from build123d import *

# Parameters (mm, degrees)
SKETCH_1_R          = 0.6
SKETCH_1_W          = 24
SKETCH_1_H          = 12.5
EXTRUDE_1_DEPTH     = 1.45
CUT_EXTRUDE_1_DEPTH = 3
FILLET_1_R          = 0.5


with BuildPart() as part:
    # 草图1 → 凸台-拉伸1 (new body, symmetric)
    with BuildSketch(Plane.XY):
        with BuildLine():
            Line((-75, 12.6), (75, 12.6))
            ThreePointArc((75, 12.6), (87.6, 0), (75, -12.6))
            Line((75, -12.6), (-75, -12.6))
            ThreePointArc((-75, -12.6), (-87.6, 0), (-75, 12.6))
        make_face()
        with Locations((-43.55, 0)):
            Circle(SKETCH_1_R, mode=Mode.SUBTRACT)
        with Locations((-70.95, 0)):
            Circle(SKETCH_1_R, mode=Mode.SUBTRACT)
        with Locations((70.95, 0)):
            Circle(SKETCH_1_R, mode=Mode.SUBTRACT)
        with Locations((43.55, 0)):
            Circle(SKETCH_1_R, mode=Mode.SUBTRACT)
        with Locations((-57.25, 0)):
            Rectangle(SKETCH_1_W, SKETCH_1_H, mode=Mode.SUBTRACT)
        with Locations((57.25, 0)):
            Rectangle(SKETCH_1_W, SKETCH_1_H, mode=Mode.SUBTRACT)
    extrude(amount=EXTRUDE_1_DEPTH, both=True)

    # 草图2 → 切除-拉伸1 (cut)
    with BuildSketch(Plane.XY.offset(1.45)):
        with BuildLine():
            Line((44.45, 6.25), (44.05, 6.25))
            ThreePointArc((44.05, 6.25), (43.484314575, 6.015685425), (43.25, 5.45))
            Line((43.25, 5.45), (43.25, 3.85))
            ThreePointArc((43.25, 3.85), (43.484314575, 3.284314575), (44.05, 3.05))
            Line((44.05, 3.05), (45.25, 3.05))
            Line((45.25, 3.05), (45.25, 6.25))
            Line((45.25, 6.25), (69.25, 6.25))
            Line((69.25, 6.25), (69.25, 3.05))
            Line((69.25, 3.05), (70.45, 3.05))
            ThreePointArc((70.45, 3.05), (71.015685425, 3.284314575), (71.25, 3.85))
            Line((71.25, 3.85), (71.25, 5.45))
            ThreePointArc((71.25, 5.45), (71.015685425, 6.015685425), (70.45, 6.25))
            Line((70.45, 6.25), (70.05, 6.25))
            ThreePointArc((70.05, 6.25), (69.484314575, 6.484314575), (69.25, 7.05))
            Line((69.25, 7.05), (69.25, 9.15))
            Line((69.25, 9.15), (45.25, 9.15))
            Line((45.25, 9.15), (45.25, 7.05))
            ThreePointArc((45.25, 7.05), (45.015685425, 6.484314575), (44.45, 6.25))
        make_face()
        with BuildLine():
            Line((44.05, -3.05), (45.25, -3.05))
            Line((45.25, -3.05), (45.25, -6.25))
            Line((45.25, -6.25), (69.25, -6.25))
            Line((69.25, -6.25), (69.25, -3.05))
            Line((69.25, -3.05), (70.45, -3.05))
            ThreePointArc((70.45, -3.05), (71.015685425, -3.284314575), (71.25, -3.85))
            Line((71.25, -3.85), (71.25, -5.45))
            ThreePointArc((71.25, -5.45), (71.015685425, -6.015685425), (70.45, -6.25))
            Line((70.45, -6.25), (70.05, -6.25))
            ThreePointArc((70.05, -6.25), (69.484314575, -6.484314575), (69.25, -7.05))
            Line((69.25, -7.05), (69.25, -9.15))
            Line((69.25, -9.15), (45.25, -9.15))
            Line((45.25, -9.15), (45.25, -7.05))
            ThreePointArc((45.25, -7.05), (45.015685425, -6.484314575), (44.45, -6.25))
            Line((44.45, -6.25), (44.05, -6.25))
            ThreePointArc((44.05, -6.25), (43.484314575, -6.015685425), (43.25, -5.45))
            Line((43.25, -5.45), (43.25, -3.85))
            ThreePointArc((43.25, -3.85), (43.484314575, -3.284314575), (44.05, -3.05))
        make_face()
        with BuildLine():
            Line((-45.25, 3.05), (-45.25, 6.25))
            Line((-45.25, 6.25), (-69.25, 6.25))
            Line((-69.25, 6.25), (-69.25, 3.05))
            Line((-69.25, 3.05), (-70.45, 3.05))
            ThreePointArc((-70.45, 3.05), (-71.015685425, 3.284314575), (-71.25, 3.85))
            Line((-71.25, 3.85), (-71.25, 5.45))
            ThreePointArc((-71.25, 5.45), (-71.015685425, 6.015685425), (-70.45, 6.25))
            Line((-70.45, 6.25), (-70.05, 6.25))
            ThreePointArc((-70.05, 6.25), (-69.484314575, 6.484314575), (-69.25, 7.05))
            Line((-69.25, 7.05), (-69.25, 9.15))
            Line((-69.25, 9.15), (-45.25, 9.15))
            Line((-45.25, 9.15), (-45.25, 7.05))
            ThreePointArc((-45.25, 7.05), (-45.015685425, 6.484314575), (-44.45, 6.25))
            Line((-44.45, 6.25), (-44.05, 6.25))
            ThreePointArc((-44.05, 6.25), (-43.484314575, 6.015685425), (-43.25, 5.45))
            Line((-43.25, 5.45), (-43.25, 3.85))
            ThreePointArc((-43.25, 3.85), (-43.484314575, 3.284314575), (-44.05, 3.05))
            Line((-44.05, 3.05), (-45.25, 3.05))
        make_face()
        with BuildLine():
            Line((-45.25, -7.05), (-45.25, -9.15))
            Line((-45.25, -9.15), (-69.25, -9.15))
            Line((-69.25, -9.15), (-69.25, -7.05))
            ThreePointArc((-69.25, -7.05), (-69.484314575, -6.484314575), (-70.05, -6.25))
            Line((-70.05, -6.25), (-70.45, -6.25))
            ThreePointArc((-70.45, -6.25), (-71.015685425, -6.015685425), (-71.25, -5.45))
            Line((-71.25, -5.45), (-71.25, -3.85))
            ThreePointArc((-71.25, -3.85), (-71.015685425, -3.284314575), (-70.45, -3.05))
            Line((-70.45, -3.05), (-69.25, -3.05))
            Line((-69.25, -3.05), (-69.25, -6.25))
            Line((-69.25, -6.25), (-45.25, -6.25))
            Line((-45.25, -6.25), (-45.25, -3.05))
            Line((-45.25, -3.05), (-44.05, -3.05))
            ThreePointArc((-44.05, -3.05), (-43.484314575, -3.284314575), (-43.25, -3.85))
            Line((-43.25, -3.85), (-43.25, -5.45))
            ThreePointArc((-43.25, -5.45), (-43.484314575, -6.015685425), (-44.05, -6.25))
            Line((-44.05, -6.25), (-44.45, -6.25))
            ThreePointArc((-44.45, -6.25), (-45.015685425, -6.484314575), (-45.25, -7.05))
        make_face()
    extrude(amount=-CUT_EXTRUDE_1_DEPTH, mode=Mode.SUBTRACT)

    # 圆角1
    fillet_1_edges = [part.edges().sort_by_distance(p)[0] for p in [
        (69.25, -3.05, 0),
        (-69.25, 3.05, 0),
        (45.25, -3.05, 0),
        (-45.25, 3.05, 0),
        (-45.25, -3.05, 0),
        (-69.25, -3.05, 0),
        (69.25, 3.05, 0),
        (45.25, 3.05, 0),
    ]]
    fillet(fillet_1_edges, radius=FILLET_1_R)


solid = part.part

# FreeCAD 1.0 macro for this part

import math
import FreeCAD as App
import Part
import Sketcher

V = App.Vector


def edges_at(feature, points):
    """Names of the edges that pass closest to the given points."""
    edges = feature.Shape.Edges
    near = lambda p: min(range(len(edges)), key=lambda i: edges[i].distToShape(Part.Vertex(*p))[0])
    return sorted({f"Edge{near(p) + 1}" for p in points})

doc = App.newDocument("Part")
body = doc.addObject("PartDesign::Body", "Body")

# Sketch on XY plane
sketch1 = body.newObject("Sketcher::SketchObject", "Sketch")
sketch1.AttachmentSupport = (doc.getObject("XY_Plane"), [""])
sketch1.MapMode = "FlatFace"
sketch1.addGeometry([
    Part.LineSegment(V(75, 12.6, 0), V(-75, 12.6, 0)),  # 0
    Part.ArcOfCircle(Part.Circle(V(-75, 0, 0), V(0, 0, 1), 12.6), math.radians(90), math.radians(270)),  # 1
    Part.LineSegment(V(-75, -12.6, 0), V(75, -12.6, 0)),  # 2
    Part.ArcOfCircle(Part.Circle(V(75, 0, 0), V(0, 0, 1), 12.6), math.radians(-90), math.radians(90)),  # 3
    Part.Circle(V(71, 0, 0), V(0, 0, 1), 0.6),  # 4
    Part.LineSegment(V(45.2, -6.2, 0), V(45.2, 6.2, 0)),  # 5
    Part.LineSegment(V(45.2, 6.2, 0), V(69.2, 6.2, 0)),  # 6
    Part.LineSegment(V(69.2, 6.2, 0), V(69.2, -6.2, 0)),  # 7
    Part.LineSegment(V(69.2, -6.2, 0), V(45.2, -6.2, 0)),  # 8
    Part.Circle(V(43.5, 0, 0), V(0, 0, 1), 0.6),  # 9
    Part.Circle(V(-43.5, 0, 0), V(0, 0, 1), 0.6),  # 10
    Part.LineSegment(V(-69.2, -6.2, 0), V(-69.2, 6.2, 0)),  # 11
    Part.LineSegment(V(-69.2, 6.2, 0), V(-45.2, 6.2, 0)),  # 12
    Part.LineSegment(V(-45.2, 6.2, 0), V(-45.2, -6.2, 0)),  # 13
    Part.LineSegment(V(-45.2, -6.2, 0), V(-69.2, -6.2, 0)),  # 14
    Part.Circle(V(-71, 0, 0), V(0, 0, 1), 0.6),  # 15
], False)
sketch1.addConstraint([
    Sketcher.Constraint("Tangent", 0, 2, 1, 1),
    Sketcher.Constraint("Tangent", 1, 2, 2, 1),
    Sketcher.Constraint("Tangent", 2, 2, 3, 1),
    Sketcher.Constraint("Tangent", 3, 2, 0, 1),
    Sketcher.Constraint("Coincident", 5, 2, 6, 1),
    Sketcher.Constraint("Coincident", 6, 2, 7, 1),
    Sketcher.Constraint("Coincident", 7, 2, 8, 1),
    Sketcher.Constraint("Coincident", 8, 2, 5, 1),
    Sketcher.Constraint("Coincident", 11, 2, 12, 1),
    Sketcher.Constraint("Coincident", 12, 2, 13, 1),
    Sketcher.Constraint("Coincident", 13, 2, 14, 1),
    Sketcher.Constraint("Coincident", 14, 2, 11, 1),
    Sketcher.Constraint("Horizontal", 0),
    Sketcher.Constraint("Horizontal", 2),
    Sketcher.Constraint("Vertical", 5),
    Sketcher.Constraint("Horizontal", 6),
    Sketcher.Constraint("Vertical", 7),
    Sketcher.Constraint("Horizontal", 8),
    Sketcher.Constraint("Vertical", 11),
    Sketcher.Constraint("Horizontal", 12),
    Sketcher.Constraint("Vertical", 13),
    Sketcher.Constraint("Horizontal", 14),
    Sketcher.Constraint("Equal", 4, 9),
    Sketcher.Constraint("Equal", 9, 10),
    Sketcher.Constraint("Equal", 10, 15),
    Sketcher.Constraint("Symmetric", 1, 3, 3, 3, -1, 1),
    Sketcher.Constraint("Symmetric", 9, 3, 10, 3, -1, 1),
    Sketcher.Constraint("Symmetric", 4, 3, 15, 3, -1, 1),
    Sketcher.Constraint("Symmetric", 7, 2, 11, 2, -1, 1),
    Sketcher.Constraint("Symmetric", 5, 2, 13, 2, -1, 1),
    Sketcher.Constraint("PointOnObject", 4, 3, -1),
    Sketcher.Constraint("PointOnObject", 9, 3, -1),
    Sketcher.Constraint("Horizontal", 6, 2, 11, 2),
    Sketcher.Constraint("Diameter", 4, 1.2),
    Sketcher.Constraint("Radius", 1, 12.6),
    Sketcher.Constraint("DistanceX", 0, 2, 0, 1, 150.0),
    Sketcher.Constraint("DistanceX", 6, 1, 6, 2, 24.0),
    Sketcher.Constraint("DistanceY", 5, 1, 5, 2, 12.5),
    Sketcher.Constraint("DistanceX", 9, 3, 4, 3, 27.4),
    Sketcher.Constraint("DistanceX", 10, 3, 9, 3, 87.1),
    Sketcher.Constraint("DistanceX", 9, 3, 5, 2, 1.7),
])
pad1 = body.newObject("PartDesign::Pad", "Pad")
pad1.Profile = sketch1
pad1.Length = 2.9
pad1.Midplane = True

# Sketch on XY plane
sketch2 = body.newObject("Sketcher::SketchObject", "Sketch001")
sketch2.AttachmentSupport = (doc.getObject("XY_Plane"), [""])
sketch2.MapMode = "FlatFace"
sketch2.AttachmentOffset = App.Placement(V(0, 0, 1.45), App.Rotation())
sketch2.addGeometry([
    Part.LineSegment(V(44.45, 6.25, 0), V(44.05, 6.25, 0)),  # 0
    Part.ArcOfCircle(Part.Circle(V(44.05, 5.45, 0), V(0, 0, 1), 0.8), math.radians(90), math.radians(180)),  # 1
    Part.LineSegment(V(43.25, 5.45, 0), V(43.25, 3.85, 0)),  # 2
    Part.ArcOfCircle(Part.Circle(V(44.05, 3.85, 0), V(0, 0, 1), 0.8), math.radians(180), math.radians(270)),  # 3
    Part.LineSegment(V(44.05, 3.05, 0), V(45.25, 3.05, 0)),  # 4
    Part.LineSegment(V(45.25, 3.05, 0), V(45.25, 6.25, 0)),  # 5
    Part.LineSegment(V(45.25, 6.25, 0), V(69.25, 6.25, 0)),  # 6
    Part.LineSegment(V(69.25, 6.25, 0), V(69.25, 3.05, 0)),  # 7
    Part.LineSegment(V(69.25, 3.05, 0), V(70.45, 3.05, 0)),  # 8
    Part.ArcOfCircle(Part.Circle(V(70.45, 3.85, 0), V(0, 0, 1), 0.8), math.radians(-90), math.radians(0)),  # 9
    Part.LineSegment(V(71.25, 3.85, 0), V(71.25, 5.45, 0)),  # 10
    Part.ArcOfCircle(Part.Circle(V(70.45, 5.45, 0), V(0, 0, 1), 0.8), math.radians(0), math.radians(90)),  # 11
    Part.LineSegment(V(70.45, 6.25, 0), V(70.05, 6.25, 0)),  # 12
    Part.ArcOfCircle(Part.Circle(V(70.05, 7.05, 0), V(0, 0, 1), 0.8), math.radians(180), math.radians(270)),  # 13
    Part.LineSegment(V(69.25, 7.05, 0), V(69.25, 9.15, 0)),  # 14
    Part.LineSegment(V(69.25, 9.15, 0), V(45.25, 9.15, 0)),  # 15
    Part.LineSegment(V(45.25, 9.15, 0), V(45.25, 7.05, 0)),  # 16
    Part.ArcOfCircle(Part.Circle(V(44.45, 7.05, 0), V(0, 0, 1), 0.8), math.radians(-90), math.radians(0)),  # 17
    Part.LineSegment(V(45.25, -3.05, 0), V(44.05, -3.05, 0)),  # 18
    Part.ArcOfCircle(Part.Circle(V(44.05, -3.85, 0), V(0, 0, 1), 0.8), math.radians(90), math.radians(180)),  # 19
    Part.LineSegment(V(43.25, -3.85, 0), V(43.25, -5.45, 0)),  # 20
    Part.ArcOfCircle(Part.Circle(V(44.05, -5.45, 0), V(0, 0, 1), 0.8), math.radians(180), math.radians(270)),  # 21
    Part.LineSegment(V(44.05, -6.25, 0), V(44.45, -6.25, 0)),  # 22
    Part.ArcOfCircle(Part.Circle(V(44.45, -7.05, 0), V(0, 0, 1), 0.8), math.radians(0), math.radians(90)),  # 23
    Part.LineSegment(V(45.25, -7.05, 0), V(45.25, -9.15, 0)),  # 24
    Part.LineSegment(V(45.25, -9.15, 0), V(69.25, -9.15, 0)),  # 25
    Part.LineSegment(V(69.25, -9.15, 0), V(69.25, -7.05, 0)),  # 26
    Part.ArcOfCircle(Part.Circle(V(70.05, -7.05, 0), V(0, 0, 1), 0.8), math.radians(90), math.radians(180)),  # 27
    Part.LineSegment(V(70.05, -6.25, 0), V(70.45, -6.25, 0)),  # 28
    Part.ArcOfCircle(Part.Circle(V(70.45, -5.45, 0), V(0, 0, 1), 0.8), math.radians(-90), math.radians(0)),  # 29
    Part.LineSegment(V(71.25, -5.45, 0), V(71.25, -3.85, 0)),  # 30
    Part.ArcOfCircle(Part.Circle(V(70.45, -3.85, 0), V(0, 0, 1), 0.8), math.radians(0), math.radians(90)),  # 31
    Part.LineSegment(V(70.45, -3.05, 0), V(69.25, -3.05, 0)),  # 32
    Part.LineSegment(V(69.25, -3.05, 0), V(69.25, -6.25, 0)),  # 33
    Part.LineSegment(V(69.25, -6.25, 0), V(45.25, -6.25, 0)),  # 34
    Part.LineSegment(V(45.25, -6.25, 0), V(45.25, -3.05, 0)),  # 35
    Part.LineSegment(V(-45.25, 6.25, 0), V(-45.25, 3.05, 0)),  # 36
    Part.LineSegment(V(-45.25, 3.05, 0), V(-44.05, 3.05, 0)),  # 37
    Part.ArcOfCircle(Part.Circle(V(-44.05, 3.85, 0), V(0, 0, 1), 0.8), math.radians(-90), math.radians(0)),  # 38
    Part.LineSegment(V(-43.25, 3.85, 0), V(-43.25, 5.45, 0)),  # 39
    Part.ArcOfCircle(Part.Circle(V(-44.05, 5.45, 0), V(0, 0, 1), 0.8), math.radians(0), math.radians(90)),  # 40
    Part.LineSegment(V(-44.05, 6.25, 0), V(-44.45, 6.25, 0)),  # 41
    Part.ArcOfCircle(Part.Circle(V(-44.45, 7.05, 0), V(0, 0, 1), 0.8), math.radians(180), math.radians(270)),  # 42
    Part.LineSegment(V(-45.25, 7.05, 0), V(-45.25, 9.15, 0)),  # 43
    Part.LineSegment(V(-45.25, 9.15, 0), V(-69.25, 9.15, 0)),  # 44
    Part.LineSegment(V(-69.25, 9.15, 0), V(-69.25, 7.05, 0)),  # 45
    Part.ArcOfCircle(Part.Circle(V(-70.05, 7.05, 0), V(0, 0, 1), 0.8), math.radians(-90), math.radians(0)),  # 46
    Part.LineSegment(V(-70.05, 6.25, 0), V(-70.45, 6.25, 0)),  # 47
    Part.ArcOfCircle(Part.Circle(V(-70.45, 5.45, 0), V(0, 0, 1), 0.8), math.radians(90), math.radians(180)),  # 48
    Part.LineSegment(V(-71.25, 5.45, 0), V(-71.25, 3.85, 0)),  # 49
    Part.ArcOfCircle(Part.Circle(V(-70.45, 3.85, 0), V(0, 0, 1), 0.8), math.radians(180), math.radians(270)),  # 50
    Part.LineSegment(V(-70.45, 3.05, 0), V(-69.25, 3.05, 0)),  # 51
    Part.LineSegment(V(-69.25, 3.05, 0), V(-69.25, 6.25, 0)),  # 52
    Part.LineSegment(V(-69.25, 6.25, 0), V(-45.25, 6.25, 0)),  # 53
    Part.LineSegment(V(-45.25, -9.15, 0), V(-45.25, -7.05, 0)),  # 54
    Part.ArcOfCircle(Part.Circle(V(-44.45, -7.05, 0), V(0, 0, 1), 0.8), math.radians(90), math.radians(180)),  # 55
    Part.LineSegment(V(-44.45, -6.25, 0), V(-44.05, -6.25, 0)),  # 56
    Part.ArcOfCircle(Part.Circle(V(-44.05, -5.45, 0), V(0, 0, 1), 0.8), math.radians(-90), math.radians(0)),  # 57
    Part.LineSegment(V(-43.25, -5.45, 0), V(-43.25, -3.85, 0)),  # 58
    Part.ArcOfCircle(Part.Circle(V(-44.05, -3.85, 0), V(0, 0, 1), 0.8), math.radians(0), math.radians(90)),  # 59
    Part.LineSegment(V(-44.05, -3.05, 0), V(-45.25, -3.05, 0)),  # 60
    Part.LineSegment(V(-45.25, -3.05, 0), V(-45.25, -6.25, 0)),  # 61
    Part.LineSegment(V(-45.25, -6.25, 0), V(-69.25, -6.25, 0)),  # 62
    Part.LineSegment(V(-69.25, -6.25, 0), V(-69.25, -3.05, 0)),  # 63
    Part.LineSegment(V(-69.25, -3.05, 0), V(-70.45, -3.05, 0)),  # 64
    Part.ArcOfCircle(Part.Circle(V(-70.45, -3.85, 0), V(0, 0, 1), 0.8), math.radians(90), math.radians(180)),  # 65
    Part.LineSegment(V(-71.25, -3.85, 0), V(-71.25, -5.45, 0)),  # 66
    Part.ArcOfCircle(Part.Circle(V(-70.45, -5.45, 0), V(0, 0, 1), 0.8), math.radians(180), math.radians(270)),  # 67
    Part.LineSegment(V(-70.45, -6.25, 0), V(-70.05, -6.25, 0)),  # 68
    Part.ArcOfCircle(Part.Circle(V(-70.05, -7.05, 0), V(0, 0, 1), 0.8), math.radians(0), math.radians(90)),  # 69
    Part.LineSegment(V(-69.25, -7.05, 0), V(-69.25, -9.15, 0)),  # 70
    Part.LineSegment(V(-69.25, -9.15, 0), V(-45.25, -9.15, 0)),  # 71
], False)
sketch2.addConstraint([
    Sketcher.Constraint("Tangent", 0, 2, 1, 1),
    Sketcher.Constraint("Tangent", 1, 2, 2, 1),
    Sketcher.Constraint("Tangent", 2, 2, 3, 1),
    Sketcher.Constraint("Tangent", 3, 2, 4, 1),
    Sketcher.Constraint("Coincident", 4, 2, 5, 1),
    Sketcher.Constraint("Coincident", 5, 2, 6, 1),
    Sketcher.Constraint("Coincident", 6, 2, 7, 1),
    Sketcher.Constraint("Coincident", 7, 2, 8, 1),
    Sketcher.Constraint("Tangent", 8, 2, 9, 1),
    Sketcher.Constraint("Tangent", 9, 2, 10, 1),
    Sketcher.Constraint("Tangent", 10, 2, 11, 1),
    Sketcher.Constraint("Tangent", 11, 2, 12, 1),
    Sketcher.Constraint("Tangent", 12, 2, 13, 2),
    Sketcher.Constraint("Tangent", 13, 1, 14, 1),
    Sketcher.Constraint("Coincident", 14, 2, 15, 1),
    Sketcher.Constraint("Coincident", 15, 2, 16, 1),
    Sketcher.Constraint("Tangent", 16, 2, 17, 2),
    Sketcher.Constraint("Tangent", 17, 1, 0, 1),
    Sketcher.Constraint("Tangent", 18, 2, 19, 1),
    Sketcher.Constraint("Tangent", 19, 2, 20, 1),
    Sketcher.Constraint("Tangent", 20, 2, 21, 1),
    Sketcher.Constraint("Tangent", 21, 2, 22, 1),
    Sketcher.Constraint("Tangent", 22, 2, 23, 2),
    Sketcher.Constraint("Tangent", 23, 1, 24, 1),
    Sketcher.Constraint("Coincident", 24, 2, 25, 1),
    Sketcher.Constraint("Coincident", 25, 2, 26, 1),
    Sketcher.Constraint("Tangent", 26, 2, 27, 2),
    Sketcher.Constraint("Tangent", 27, 1, 28, 1),
    Sketcher.Constraint("Tangent", 28, 2, 29, 1),
    Sketcher.Constraint("Tangent", 29, 2, 30, 1),
    Sketcher.Constraint("Tangent", 30, 2, 31, 1),
    Sketcher.Constraint("Tangent", 31, 2, 32, 1),
    Sketcher.Constraint("Coincident", 32, 2, 33, 1),
    Sketcher.Constraint("Coincident", 33, 2, 34, 1),
    Sketcher.Constraint("Coincident", 34, 2, 35, 1),
    Sketcher.Constraint("Coincident", 35, 2, 18, 1),
    Sketcher.Constraint("Coincident", 36, 2, 37, 1),
    Sketcher.Constraint("Tangent", 37, 2, 38, 1),
    Sketcher.Constraint("Tangent", 38, 2, 39, 1),
    Sketcher.Constraint("Tangent", 39, 2, 40, 1),
    Sketcher.Constraint("Tangent", 40, 2, 41, 1),
    Sketcher.Constraint("Tangent", 41, 2, 42, 2),
    Sketcher.Constraint("Tangent", 42, 1, 43, 1),
    Sketcher.Constraint("Coincident", 43, 2, 44, 1),
    Sketcher.Constraint("Coincident", 44, 2, 45, 1),
    Sketcher.Constraint("Tangent", 45, 2, 46, 2),
    Sketcher.Constraint("Tangent", 46, 1, 47, 1),
    Sketcher.Constraint("Tangent", 47, 2, 48, 1),
    Sketcher.Constraint("Tangent", 48, 2, 49, 1),
    Sketcher.Constraint("Tangent", 49, 2, 50, 1),
    Sketcher.Constraint("Tangent", 50, 2, 51, 1),
    Sketcher.Constraint("Coincident", 51, 2, 52, 1),
    Sketcher.Constraint("Coincident", 52, 2, 53, 1),
    Sketcher.Constraint("Coincident", 53, 2, 36, 1),
    Sketcher.Constraint("Tangent", 54, 2, 55, 2),
    Sketcher.Constraint("Tangent", 55, 1, 56, 1),
    Sketcher.Constraint("Tangent", 56, 2, 57, 1),
    Sketcher.Constraint("Tangent", 57, 2, 58, 1),
    Sketcher.Constraint("Tangent", 58, 2, 59, 1),
    Sketcher.Constraint("Tangent", 59, 2, 60, 1),
    Sketcher.Constraint("Coincident", 60, 2, 61, 1),
    Sketcher.Constraint("Coincident", 61, 2, 62, 1),
    Sketcher.Constraint("Coincident", 62, 2, 63, 1),
    Sketcher.Constraint("Coincident", 63, 2, 64, 1),
    Sketcher.Constraint("Tangent", 64, 2, 65, 1),
    Sketcher.Constraint("Tangent", 65, 2, 66, 1),
    Sketcher.Constraint("Tangent", 66, 2, 67, 1),
    Sketcher.Constraint("Tangent", 67, 2, 68, 1),
    Sketcher.Constraint("Tangent", 68, 2, 69, 2),
    Sketcher.Constraint("Tangent", 69, 1, 70, 1),
    Sketcher.Constraint("Coincident", 70, 2, 71, 1),
    Sketcher.Constraint("Coincident", 71, 2, 54, 1),
    Sketcher.Constraint("Horizontal", 0),
    Sketcher.Constraint("Vertical", 2),
    Sketcher.Constraint("Horizontal", 4),
    Sketcher.Constraint("Vertical", 5),
    Sketcher.Constraint("Horizontal", 6),
    Sketcher.Constraint("Vertical", 7),
    Sketcher.Constraint("Horizontal", 8),
    Sketcher.Constraint("Vertical", 10),
    Sketcher.Constraint("Horizontal", 12),
    Sketcher.Constraint("Vertical", 14),
    Sketcher.Constraint("Horizontal", 15),
    Sketcher.Constraint("Vertical", 16),
    Sketcher.Constraint("Horizontal", 18),
    Sketcher.Constraint("Vertical", 20),
    Sketcher.Constraint("Horizontal", 22),
    Sketcher.Constraint("Vertical", 24),
    Sketcher.Constraint("Horizontal", 25),
    Sketcher.Constraint("Vertical", 26),
    Sketcher.Constraint("Horizontal", 28),
    Sketcher.Constraint("Vertical", 30),
    Sketcher.Constraint("Horizontal", 32),
    Sketcher.Constraint("Vertical", 33),
    Sketcher.Constraint("Horizontal", 34),
    Sketcher.Constraint("Vertical", 35),
    Sketcher.Constraint("Vertical", 36),
    Sketcher.Constraint("Horizontal", 37),
    Sketcher.Constraint("Vertical", 39),
    Sketcher.Constraint("Horizontal", 41),
    Sketcher.Constraint("Vertical", 43),
    Sketcher.Constraint("Horizontal", 44),
    Sketcher.Constraint("Vertical", 45),
    Sketcher.Constraint("Horizontal", 47),
    Sketcher.Constraint("Vertical", 49),
    Sketcher.Constraint("Horizontal", 51),
    Sketcher.Constraint("Vertical", 52),
    Sketcher.Constraint("Horizontal", 53),
    Sketcher.Constraint("Vertical", 54),
    Sketcher.Constraint("Horizontal", 56),
    Sketcher.Constraint("Vertical", 58),
    Sketcher.Constraint("Horizontal", 60),
    Sketcher.Constraint("Vertical", 61),
    Sketcher.Constraint("Horizontal", 62),
    Sketcher.Constraint("Vertical", 63),
    Sketcher.Constraint("Horizontal", 64),
    Sketcher.Constraint("Vertical", 66),
    Sketcher.Constraint("Horizontal", 68),
    Sketcher.Constraint("Vertical", 70),
    Sketcher.Constraint("Horizontal", 71),
    Sketcher.Constraint("Equal", 1, 3),
    Sketcher.Constraint("Equal", 3, 9),
    Sketcher.Constraint("Equal", 9, 11),
    Sketcher.Constraint("Equal", 11, 13),
    Sketcher.Constraint("Equal", 13, 17),
    Sketcher.Constraint("Equal", 17, 19),
    Sketcher.Constraint("Equal", 19, 21),
    Sketcher.Constraint("Equal", 21, 23),
    Sketcher.Constraint("Equal", 23, 27),
    Sketcher.Constraint("Equal", 27, 29),
    Sketcher.Constraint("Equal", 29, 31),
    Sketcher.Constraint("Equal", 31, 38),
    Sketcher.Constraint("Equal", 38, 40),
    Sketcher.Constraint("Equal", 40, 42),
    Sketcher.Constraint("Equal", 42, 46),
    Sketcher.Constraint("Equal", 46, 48),
    Sketcher.Constraint("Equal", 48, 50),
    Sketcher.Constraint("Equal", 50, 55),
    Sketcher.Constraint("Equal", 55, 57),
    Sketcher.Constraint("Equal", 57, 59),
    Sketcher.Constraint("Equal", 59, 65),
    Sketcher.Constraint("Equal", 65, 67),
    Sketcher.Constraint("Equal", 67, 69),
    Sketcher.Constraint("Symmetric", 19, 3, 38, 3, -1, 1),
    Sketcher.Constraint("Symmetric", 23, 3, 42, 3, -1, 1),
    Sketcher.Constraint("Symmetric", 27, 3, 46, 3, -1, 1),
    Sketcher.Constraint("Symmetric", 31, 3, 50, 3, -1, 1),
    Sketcher.Constraint("Symmetric", 17, 3, 55, 3, -1, 1),
    Sketcher.Constraint("Symmetric", 3, 3, 59, 3, -1, 1),
    Sketcher.Constraint("Symmetric", 9, 3, 65, 3, -1, 1),
    Sketcher.Constraint("Symmetric", 13, 3, 69, 3, -1, 1),
    Sketcher.Constraint("Symmetric", 33, 2, 52, 2, -1, 1),
    Sketcher.Constraint("Symmetric", 5, 2, 61, 2, -1, 1),
    Sketcher.Constraint("Symmetric", 3, 3, 38, 3, -2),
    Sketcher.Constraint("Symmetric", 17, 3, 42, 3, -2),
    Sketcher.Constraint("Symmetric", 13, 3, 46, 3, -2),
    Sketcher.Constraint("Symmetric", 9, 3, 50, 3, -2),
    Sketcher.Constraint("Symmetric", 6, 2, 52, 2, -2),
    Sketcher.Constraint("Horizontal", 3, 3, 9, 3),
    Sketcher.Constraint("Horizontal", 1, 3, 11, 3),
    Sketcher.Constraint("Horizontal", 0, 2, 5, 2),
    Sketcher.Constraint("Horizontal", 15, 2, 43, 2),
    Sketcher.Constraint("Horizontal", 25, 2, 70, 2),
    Sketcher.Constraint("Vertical", 7, 2, 13, 1),
    Sketcher.Constraint("Vertical", 5, 2, 15, 2),
    Sketcher.Constraint("Vertical", 24, 2, 34, 2),
    Sketcher.Constraint("Vertical", 36, 2, 42, 1),
    Sketcher.Constraint("Vertical", 52, 2, 62, 2),
    Sketcher.Constraint("Equal", 4, 8),
    Sketcher.Constraint("Equal", 16, 24),
    Sketcher.Constraint("Radius", 1, 0.8),
    Sketcher.Constraint("DistanceX", 6, 1, 6, 2, 24.0),
    Sketcher.Constraint("DistanceX", 0, 2, 0, 1, 0.4),
    Sketcher.Constraint("DistanceY", 2, 2, 2, 1, 1.6),
    Sketcher.Constraint("DistanceY", 14, 1, 14, 2, 2.1),
    Sketcher.Constraint("DistanceX", -1, 1, 1, 3, 44.05),
    Sketcher.Constraint("DistanceY", -1, 1, 1, 3, 5.45),
])
pocket1 = body.newObject("PartDesign::Pocket", "Pocket")
pocket1.Profile = sketch2
pocket1.Length = 3
doc.recompute()

fillet = body.newObject("PartDesign::Fillet", "Fillet")
fillet.Base = (pocket1, edges_at(pocket1, [
    (69.25, -3.05, 0),
    (-69.25, 3.05, 0),
    (45.25, -3.05, 0),
    (-45.25, 3.05, 0),
    (-45.25, -3.05, 0),
    (-69.25, -3.05, 0),
    (69.25, 3.05, 0),
    (45.25, 3.05, 0),
]))
fillet.Radius = 0.5

doc.recompute()
